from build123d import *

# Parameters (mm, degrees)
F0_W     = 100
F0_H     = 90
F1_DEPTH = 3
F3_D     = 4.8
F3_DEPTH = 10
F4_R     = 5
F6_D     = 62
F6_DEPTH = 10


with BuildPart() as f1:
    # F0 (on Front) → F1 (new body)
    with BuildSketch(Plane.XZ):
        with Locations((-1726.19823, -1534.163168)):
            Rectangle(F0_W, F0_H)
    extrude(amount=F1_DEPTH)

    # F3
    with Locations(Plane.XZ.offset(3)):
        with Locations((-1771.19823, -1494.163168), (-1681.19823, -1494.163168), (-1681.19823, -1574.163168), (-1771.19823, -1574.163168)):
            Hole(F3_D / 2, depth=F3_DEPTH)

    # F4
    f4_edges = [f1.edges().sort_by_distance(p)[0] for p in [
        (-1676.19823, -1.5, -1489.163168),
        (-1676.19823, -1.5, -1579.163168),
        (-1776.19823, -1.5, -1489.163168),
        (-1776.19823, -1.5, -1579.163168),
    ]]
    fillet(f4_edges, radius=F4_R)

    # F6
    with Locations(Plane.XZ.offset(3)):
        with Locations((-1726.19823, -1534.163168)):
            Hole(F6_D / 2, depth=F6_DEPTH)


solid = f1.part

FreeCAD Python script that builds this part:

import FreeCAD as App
import Part
import Sketcher
from FreeCAD import Vector
Q = App.Units.Quantity


def edges_at(feature, points):
    """Names of the edges that pass closest to the given points."""
    edges = feature.Shape.Edges
    near = lambda p: min(range(len(edges)), key=lambda i: edges[i].distToShape(Part.Vertex(*p))[0])
    return sorted({f"Edge{near(p) + 1}" for p in points})

doc = App.newDocument("Part")
body = doc.addObject("PartDesign::Body", "Body")

sketch1 = doc.addObject("Sketcher::SketchObject", "Sketch")
body.addObject(sketch1)
sketch1.AttachmentSupport = (doc.XZ_Plane, [""])
sketch1.MapMode = "FlatFace"
sketch1.addGeometry([
    Part.LineSegment(Vector(-1776.19823, -1489.163168, 0), Vector(-1776.19823, -1579.163168, 0)),
    Part.LineSegment(Vector(-1776.19823, -1579.163168, 0), Vector(-1676.19823, -1579.163168, 0)),
    Part.LineSegment(Vector(-1676.19823, -1579.163168, 0), Vector(-1676.19823, -1489.163168, 0)),
    Part.LineSegment(Vector(-1676.19823, -1489.163168, 0), Vector(-1776.19823, -1489.163168, 0)),
], False)
sketch1.addConstraint([
    Sketcher.Constraint("Coincident", 0, 2, 1, 1),
    Sketcher.Constraint("Coincident", 1, 2, 2, 1),
    Sketcher.Constraint("Coincident", 2, 2, 3, 1),
    Sketcher.Constraint("Coincident", 3, 2, 0, 1),
    Sketcher.Constraint("Vertical", 0),
    Sketcher.Constraint("Horizontal", 1),
    Sketcher.Constraint("Vertical", 2),
    Sketcher.Constraint("Horizontal", 3),
    Sketcher.Constraint("DistanceX", 1, 1, 1, 2, Q("100 mm")),
    Sketcher.Constraint("DistanceY", 0, 2, 0, 1, Q("90 mm")),
    Sketcher.Constraint("DistanceX", 0, 2, -1, 1, Q("1776.19823 mm")),
    Sketcher.Constraint("DistanceY", 0, 2, -1, 1, Q("1579.163168 mm")),
])
pad1 = doc.addObject("PartDesign::Pad", "Pad")
body.addObject(pad1)
pad1.Profile = sketch1
pad1.Length = 3

sketch2 = doc.addObject("Sketcher::SketchObject", "Sketch001")
body.addObject(sketch2)
sketch2.AttachmentSupport = (doc.XZ_Plane, [""])
sketch2.MapMode = "FlatFace"
sketch2.AttachmentOffset = App.Placement(Vector(0, 0, 3), App.Rotation())
sketch2.addGeometry([
    Part.Circle(Vector(-1771.19823, -1494.163168, 0), Vector(0, 0, 1), 2.4),
    Part.Circle(Vector(-1681.19823, -1494.163168, 0), Vector(0, 0, 1), 2.4),
    Part.Circle(Vector(-1681.19823, -1574.163168, 0), Vector(0, 0, 1), 2.4),
    Part.Circle(Vector(-1771.19823, -1574.163168, 0), Vector(0, 0, 1), 2.4),
], False)
sketch2.addConstraint([
    Sketcher.Constraint("Equal", 0, 1),
    Sketcher.Constraint("Equal", 1, 2),
    Sketcher.Constraint("Equal", 2, 3),
    Sketcher.Constraint("Horizontal", 0, 3, 1, 3),
    Sketcher.Constraint("Horizontal", 2, 3, 3, 3),
    Sketcher.Constraint("Vertical", 1, 3, 2, 3),
    Sketcher.Constraint("Vertical", 0, 3, 3, 3),
    Sketcher.Constraint("Diameter", 0, Q("4.8 mm")),
    Sketcher.Constraint("DistanceX", 0, 3, 1, 3, Q("90 mm")),
    Sketcher.Constraint("DistanceY", 2, 3, 1, 3, Q("80 mm")),
    Sketcher.Constraint("DistanceX", 0, 3, -1, 1, Q("1771.19823 mm")),
    Sketcher.Constraint("DistanceY", 0, 3, -1, 1, Q("1494.163168 mm")),
])
doc.recompute()
hole = doc.addObject("PartDesign::Hole", "Hole")
body.addObject(hole)
hole.Profile = sketch2
hole.ThreadType = "None"
hole.Diameter = 4.8
hole.DepthType = "Dimension"
hole.Depth = 10
hole.DrillPoint = "Flat"
doc.recompute()

fillet = doc.addObject("PartDesign::Fillet", "Fillet")
body.addObject(fillet)
fillet.Base = (hole, edges_at(hole, [
    (-1676.198, -1.5, -1489.163),
    (-1676.198, -1.5, -1579.163),
    (-1776.198, -1.5, -1489.163),
    (-1776.198, -1.5, -1579.163),
]))
fillet.Radius = 5

sketch3 = doc.addObject("Sketcher::SketchObject", "Sketch002")
body.addObject(sketch3)
sketch3.AttachmentSupport = (doc.XZ_Plane, [""])
sketch3.MapMode = "FlatFace"
sketch3.AttachmentOffset = App.Placement(Vector(0, 0, 3), App.Rotation())
sketch3.addGeometry(Part.Circle(Vector(-1726.19823, -1534.163168, 0), Vector(0, 0, 1), 31), False)
sketch3.addConstraint([
    Sketcher.Constraint("Diameter", 0, Q("62 mm")),
    Sketcher.Constraint("DistanceX", 0, 3, -1, 1, Q("1726.19823 mm")),
    Sketcher.Constraint("DistanceY", 0, 3, -1, 1, Q("1534.163168 mm")),
])
doc.recompute()
hole2 = doc.addObject("PartDesign::Hole", "Hole001")
body.addObject(hole2)
hole2.Profile = sketch3
hole2.ThreadType = "None"
hole2.Diameter = 62
hole2.DepthType = "Dimension"
hole2.Depth = 10
hole2.DrillPoint = "Flat"

doc.recompute()
